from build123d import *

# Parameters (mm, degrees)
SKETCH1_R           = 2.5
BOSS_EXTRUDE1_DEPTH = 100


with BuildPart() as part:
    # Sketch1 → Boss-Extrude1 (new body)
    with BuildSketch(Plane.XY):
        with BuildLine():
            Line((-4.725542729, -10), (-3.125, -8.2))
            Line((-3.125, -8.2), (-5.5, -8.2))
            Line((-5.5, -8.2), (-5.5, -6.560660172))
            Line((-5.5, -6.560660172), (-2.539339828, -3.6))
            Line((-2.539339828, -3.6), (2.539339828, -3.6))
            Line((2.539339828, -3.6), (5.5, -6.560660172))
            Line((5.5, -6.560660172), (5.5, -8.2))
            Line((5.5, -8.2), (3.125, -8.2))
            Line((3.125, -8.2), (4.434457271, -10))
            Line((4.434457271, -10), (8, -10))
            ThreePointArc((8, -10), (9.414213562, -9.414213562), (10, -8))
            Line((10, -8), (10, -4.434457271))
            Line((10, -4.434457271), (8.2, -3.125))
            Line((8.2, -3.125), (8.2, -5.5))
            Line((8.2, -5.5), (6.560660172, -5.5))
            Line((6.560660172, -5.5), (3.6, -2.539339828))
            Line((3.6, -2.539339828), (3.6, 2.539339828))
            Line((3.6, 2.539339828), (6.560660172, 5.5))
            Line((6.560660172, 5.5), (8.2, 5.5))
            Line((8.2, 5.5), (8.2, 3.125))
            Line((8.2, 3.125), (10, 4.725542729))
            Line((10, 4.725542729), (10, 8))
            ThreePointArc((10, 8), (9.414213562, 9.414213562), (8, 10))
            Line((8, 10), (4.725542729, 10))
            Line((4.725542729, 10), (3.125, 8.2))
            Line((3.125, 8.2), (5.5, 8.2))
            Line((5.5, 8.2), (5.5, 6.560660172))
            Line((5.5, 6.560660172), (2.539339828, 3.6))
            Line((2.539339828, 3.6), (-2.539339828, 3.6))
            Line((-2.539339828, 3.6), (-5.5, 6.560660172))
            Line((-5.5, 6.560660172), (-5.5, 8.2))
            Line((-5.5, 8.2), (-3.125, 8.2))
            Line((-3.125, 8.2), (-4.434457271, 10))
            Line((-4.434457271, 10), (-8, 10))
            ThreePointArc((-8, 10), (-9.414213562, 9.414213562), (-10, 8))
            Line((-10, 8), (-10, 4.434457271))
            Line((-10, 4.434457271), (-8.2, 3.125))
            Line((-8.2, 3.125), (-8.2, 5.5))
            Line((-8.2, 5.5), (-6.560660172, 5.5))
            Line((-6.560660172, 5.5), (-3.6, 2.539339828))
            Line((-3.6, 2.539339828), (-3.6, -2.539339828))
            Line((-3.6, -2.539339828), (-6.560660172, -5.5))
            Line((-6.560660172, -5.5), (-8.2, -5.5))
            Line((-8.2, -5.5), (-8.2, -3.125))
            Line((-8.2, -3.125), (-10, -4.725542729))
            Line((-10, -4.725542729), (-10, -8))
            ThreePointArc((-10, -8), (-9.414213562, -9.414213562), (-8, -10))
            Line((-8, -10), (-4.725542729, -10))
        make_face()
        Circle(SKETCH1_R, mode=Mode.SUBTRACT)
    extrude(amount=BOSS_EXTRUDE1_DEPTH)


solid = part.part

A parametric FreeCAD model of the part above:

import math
import FreeCAD as App
import Part
import Sketcher

V = App.Vector

doc = App.newDocument("Part")
params = doc.addObject("Spreadsheet::Sheet", "Params")
for row, (alias, value) in enumerate([
    ("sketch1_diameter", "5 mm"),
    ("sketch1_radius", "2 mm"),
    ("pad1_length", "100 mm"),
], start=1):
    params.set(f"A{row}", alias)
    params.set(f"B{row}", "=" + value)
    params.setAlias(f"B{row}", alias)

body = doc.addObject("PartDesign::Body", "Body")

# Sketch on XY plane
sketch1 = body.newObject("Sketcher::SketchObject", "Sketch")
sketch1.AttachmentSupport = (doc.getObject("XY_Plane"), [""])
sketch1.MapMode = "FlatFace"
sketch1.addGeometry([
    Part.LineSegment(V(-4.725543, -10, 0), V(-3.125, -8.2, 0)),  # 0
    Part.LineSegment(V(-3.125, -8.2, 0), V(-5.5, -8.2, 0)),  # 1
    Part.LineSegment(V(-5.5, -8.2, 0), V(-5.5, -6.56066, 0)),  # 2
    Part.LineSegment(V(-5.5, -6.56066, 0), V(-2.53934, -3.6, 0)),  # 3
    Part.LineSegment(V(-2.53934, -3.6, 0), V(2.53934, -3.6, 0)),  # 4
    Part.LineSegment(V(2.53934, -3.6, 0), V(5.5, -6.56066, 0)),  # 5
    Part.LineSegment(V(5.5, -6.56066, 0), V(5.5, -8.2, 0)),  # 6
    Part.LineSegment(V(5.5, -8.2, 0), V(3.125, -8.2, 0)),  # 7
    Part.LineSegment(V(3.125, -8.2, 0), V(4.434457, -10, 0)),  # 8
    Part.LineSegment(V(4.434457, -10, 0), V(8, -10, 0)),  # 9
    Part.ArcOfCircle(Part.Circle(V(8, -8, 0), V(0, 0, 1), 2), math.radians(-90), math.radians(0)),  # 10
    Part.LineSegment(V(10, -8, 0), V(10, -4.434457, 0)),  # 11
    Part.LineSegment(V(10, -4.434457, 0), V(8.2, -3.125, 0)),  # 12
    Part.LineSegment(V(8.2, -3.125, 0), V(8.2, -5.5, 0)),  # 13
    Part.LineSegment(V(8.2, -5.5, 0), V(6.56066, -5.5, 0)),  # 14
    Part.LineSegment(V(6.56066, -5.5, 0), V(3.6, -2.53934, 0)),  # 15
    Part.LineSegment(V(3.6, -2.53934, 0), V(3.6, 2.53934, 0)),  # 16
    Part.LineSegment(V(3.6, 2.53934, 0), V(6.56066, 5.5, 0)),  # 17
    Part.LineSegment(V(6.56066, 5.5, 0), V(8.2, 5.5, 0)),  # 18
    Part.LineSegment(V(8.2, 5.5, 0), V(8.2, 3.125, 0)),  # 19
    Part.LineSegment(V(8.2, 3.125, 0), V(10, 4.725543, 0)),  # 20
    Part.LineSegment(V(10, 4.725543, 0), V(10, 8, 0)),  # 21
    Part.ArcOfCircle(Part.Circle(V(8, 8, 0), V(0, 0, 1), 2), math.radians(0), math.radians(90)),  # 22
    Part.LineSegment(V(8, 10, 0), V(4.725543, 10, 0)),  # 23
    Part.LineSegment(V(4.725543, 10, 0), V(3.125, 8.2, 0)),  # 24
    Part.LineSegment(V(3.125, 8.2, 0), V(5.5, 8.2, 0)),  # 25
    Part.LineSegment(V(5.5, 8.2, 0), V(5.5, 6.56066, 0)),  # 26
    Part.LineSegment(V(5.5, 6.56066, 0), V(2.53934, 3.6, 0)),  # 27
    Part.LineSegment(V(2.53934, 3.6, 0), V(-2.53934, 3.6, 0)),  # 28
    Part.LineSegment(V(-2.53934, 3.6, 0), V(-5.5, 6.56066, 0)),  # 29
    Part.LineSegment(V(-5.5, 6.56066, 0), V(-5.5, 8.2, 0)),  # 30
    Part.LineSegment(V(-5.5, 8.2, 0), V(-3.125, 8.2, 0)),  # 31
    Part.LineSegment(V(-3.125, 8.2, 0), V(-4.434457, 10, 0)),  # 32
    Part.LineSegment(V(-4.434457, 10, 0), V(-8, 10, 0)),  # 33
    Part.ArcOfCircle(Part.Circle(V(-8, 8, 0), V(0, 0, 1), 2), math.radians(90), math.radians(180)),  # 34
    Part.LineSegment(V(-10, 8, 0), V(-10, 4.434457, 0)),  # 35
    Part.LineSegment(V(-10, 4.434457, 0), V(-8.2, 3.125, 0)),  # 36
    Part.LineSegment(V(-8.2, 3.125, 0), V(-8.2, 5.5, 0)),  # 37
    Part.LineSegment(V(-8.2, 5.5, 0), V(-6.56066, 5.5, 0)),  # 38
    Part.LineSegment(V(-6.56066, 5.5, 0), V(-3.6, 2.53934, 0)),  # 39
    Part.LineSegment(V(-3.6, 2.53934, 0), V(-3.6, -2.53934, 0)),  # 40
    Part.LineSegment(V(-3.6, -2.53934, 0), V(-6.56066, -5.5, 0)),  # 41
    Part.LineSegment(V(-6.56066, -5.5, 0), V(-8.2, -5.5, 0)),  # 42
    Part.LineSegment(V(-8.2, -5.5, 0), V(-8.2, -3.125, 0)),  # 43
    Part.LineSegment(V(-8.2, -3.125, 0), V(-10, -4.725543, 0)),  # 44
    Part.LineSegment(V(-10, -4.725543, 0), V(-10, -8, 0)),  # 45
    Part.ArcOfCircle(Part.Circle(V(-8, -8, 0), V(0, 0, 1), 2), math.radians(-180), math.radians(-90)),  # 46
    Part.LineSegment(V(-8, -10, 0), V(-4.725543, -10, 0)),  # 47
    Part.Circle(V(0, 0, 0), V(0, 0, 1), 2.5),  # 48
], False)
sketch1.addConstraint([
    Sketcher.Constraint("Coincident", 0, 2, 1, 1),
    Sketcher.Constraint("Coincident", 1, 2, 2, 1),
    Sketcher.Constraint("Coincident", 2, 2, 3, 1),
    Sketcher.Constraint("Coincident", 3, 2, 4, 1),
    Sketcher.Constraint("Coincident", 4, 2, 5, 1),
    Sketcher.Constraint("Coincident", 5, 2, 6, 1),
    Sketcher.Constraint("Coincident", 6, 2, 7, 1),
    Sketcher.Constraint("Coincident", 7, 2, 8, 1),
    Sketcher.Constraint("Coincident", 8, 2, 9, 1),
    Sketcher.Constraint("Tangent", 9, 2, 10, 1),
    Sketcher.Constraint("Tangent", 10, 2, 11, 1),
    Sketcher.Constraint("Coincident", 11, 2, 12, 1),
    Sketcher.Constraint("Coincident", 12, 2, 13, 1),
    Sketcher.Constraint("Coincident", 13, 2, 14, 1),
    Sketcher.Constraint("Coincident", 14, 2, 15, 1),
    Sketcher.Constraint("Coincident", 15, 2, 16, 1),
    Sketcher.Constraint("Coincident", 16, 2, 17, 1),
    Sketcher.Constraint("Coincident", 17, 2, 18, 1),
    Sketcher.Constraint("Coincident", 18, 2, 19, 1),
    Sketcher.Constraint("Coincident", 19, 2, 20, 1),
    Sketcher.Constraint("Coincident", 20, 2, 21, 1),
    Sketcher.Constraint("Tangent", 21, 2, 22, 1),
    Sketcher.Constraint("Tangent", 22, 2, 23, 1),
    Sketcher.Constraint("Coincident", 23, 2, 24, 1),
    Sketcher.Constraint("Coincident", 24, 2, 25, 1),
    Sketcher.Constraint("Coincident", 25, 2, 26, 1),
    Sketcher.Constraint("Coincident", 26, 2, 27, 1),
    Sketcher.Constraint("Coincident", 27, 2, 28, 1),
    Sketcher.Constraint("Coincident", 28, 2, 29, 1),
    Sketcher.Constraint("Coincident", 29, 2, 30, 1),
    Sketcher.Constraint("Coincident", 30, 2, 31, 1),
    Sketcher.Constraint("Coincident", 31, 2, 32, 1),
    Sketcher.Constraint("Coincident", 32, 2, 33, 1),
    Sketcher.Constraint("Tangent", 33, 2, 34, 1),
    Sketcher.Constraint("Tangent", 34, 2, 35, 1),
    Sketcher.Constraint("Coincident", 35, 2, 36, 1),
    Sketcher.Constraint("Coincident", 36, 2, 37, 1),
    Sketcher.Constraint("Coincident", 37, 2, 38, 1),
    Sketcher.Constraint("Coincident", 38, 2, 39, 1),
    Sketcher.Constraint("Coincident", 39, 2, 40, 1),
    Sketcher.Constraint("Coincident", 40, 2, 41, 1),
    Sketcher.Constraint("Coincident", 41, 2, 42, 1),
    Sketcher.Constraint("Coincident", 42, 2, 43, 1),
    Sketcher.Constraint("Coincident", 43, 2, 44, 1),
    Sketcher.Constraint("Coincident", 44, 2, 45, 1),
    Sketcher.Constraint("Tangent", 45, 2, 46, 1),
    Sketcher.Constraint("Tangent", 46, 2, 47, 1),
    Sketcher.Constraint("Coincident", 47, 2, 0, 1),
    Sketcher.Constraint("Horizontal", 1),
    Sketcher.Constraint("Vertical", 2),
    Sketcher.Constraint("Horizontal", 4),
    Sketcher.Constraint("Vertical", 6),
    Sketcher.Constraint("Horizontal", 7),
    Sketcher.Constraint("Horizontal", 9),
    Sketcher.Constraint("Vertical", 11),
    Sketcher.Constraint("Vertical", 13),
    Sketcher.Constraint("Horizontal", 14),
    Sketcher.Constraint("Vertical", 16),
    Sketcher.Constraint("Horizontal", 18),
    Sketcher.Constraint("Vertical", 19),
    Sketcher.Constraint("Vertical", 21),
    Sketcher.Constraint("Horizontal", 23),
    Sketcher.Constraint("Horizontal", 25),
    Sketcher.Constraint("Vertical", 26),
    Sketcher.Constraint("Horizontal", 28),
    Sketcher.Constraint("Vertical", 30),
    Sketcher.Constraint("Horizontal", 31),
    Sketcher.Constraint("Horizontal", 33),
    Sketcher.Constraint("Vertical", 35),
    Sketcher.Constraint("Vertical", 37),
    Sketcher.Constraint("Horizontal", 38),
    Sketcher.Constraint("Vertical", 40),
    Sketcher.Constraint("Horizontal", 42),
    Sketcher.Constraint("Vertical", 43),
    Sketcher.Constraint("Vertical", 45),
    Sketcher.Constraint("Horizontal", 47),
    Sketcher.Constraint("Coincident", 48, 3, -1, 1),
    Sketcher.Constraint("Equal", 10, 22),
    Sketcher.Constraint("Equal", 22, 34),
    Sketcher.Constraint("Equal", 34, 46),
    Sketcher.Constraint("Symmetric", 10, 3, 34, 3, -1, 1),
    Sketcher.Constraint("Symmetric", 22, 3, 46, 3, -1, 1),
    Sketcher.Constraint("Symmetric", 0, 2, 24, 2, -1, 1),
    Sketcher.Constraint("Symmetric", 2, 2, 26, 2, -1, 1),
    Sketcher.Constraint("Symmetric", 3, 2, 27, 2, -1, 1),
    Sketcher.Constraint("Symmetric", 5, 2, 29, 2, -1, 1),
    Sketcher.Constraint("Symmetric", 7, 2, 31, 2, -1, 1),
    Sketcher.Constraint("Symmetric", 12, 2, 36, 2, -1, 1),
    Sketcher.Constraint("Symmetric", 14, 2, 38, 2, -1, 1),
    Sketcher.Constraint("Symmetric", 15, 2, 39, 2, -1, 1),
    Sketcher.Constraint("Symmetric", 17, 2, 41, 2, -1, 1),
    Sketcher.Constraint("Symmetric", 19, 2, 43, 2, -1, 1),
    Sketcher.Constraint("Symmetric", 22, 3, 34, 3, -2),
    Sketcher.Constraint("Symmetric", 2, 2, 5, 2, -2),
    Sketcher.Constraint("Symmetric", 0, 2, 7, 2, -2),
    Sketcher.Constraint("Symmetric", 19, 2, 36, 2, -2),
    Sketcher.Constraint("Symmetric", 17, 2, 38, 2, -2),
    Sketcher.Constraint("Perpendicular", 3, 5),
    Sketcher.Constraint("Parallel", 5, 15),
    Sketcher.Constraint("Perpendicular", 15, 17),
    Sketcher.Constraint("Parallel", 0, 24),
    Sketcher.Constraint("Perpendicular", 27, 29),
    Sketcher.Constraint("Parallel", 8, 32),
    Sketcher.Constraint("Parallel", 12, 36),
    Sketcher.Constraint("Perpendicular", 39, 41),
    Sketcher.Constraint("Parallel", 20, 44),
    Sketcher.Constraint("Horizontal", 16, 2, 39, 2),
    Sketcher.Constraint("Equal", 42, 2),
    Sketcher.Constraint("Equal", 33, 11),
    Sketcher.Constraint("Equal", 31, 13),
    Sketcher.Constraint("Equal", 28, 16),
    Sketcher.Constraint("Equal", 47, 21),
    Sketcher.Constraint("Equal", 8, 12),
    Sketcher.Constraint("Equal", 5, 15),
    Sketcher.Constraint("Equal", 0, 20),
    Sketcher.Constraint("Diameter", 48, 5.0),
    Sketcher.Constraint("Radius", 10, 2.0),
    Sketcher.Constraint("DistanceX", -1, 1, 10, 3, 8.0),
    Sketcher.Constraint("DistanceY", 0, 2, -1, 1, 8.2),
    Sketcher.Constraint("DistanceX", 1, 2, -1, 1, 5.5),
    Sketcher.Constraint("DistanceY", 3, 2, -1, 1, 3.6),
    Sketcher.Constraint("DistanceX", 1, 2, 1, 1, 2.375),
    Sketcher.Constraint("DistanceX", 4, 1, 4, 2, 5.07868),
    Sketcher.Constraint("Distance", 0, 2.40868),
    Sketcher.Constraint("Distance", 8, 2.225911),
])
sketch1.setExpression("Constraints[115]", "Params.sketch1_diameter")
sketch1.setExpression("Constraints[116]", "Params.sketch1_radius")
pad1 = body.newObject("PartDesign::Pad", "Pad")
pad1.Profile = sketch1
pad1.setExpression("Length", "Params.pad1_length")

doc.recompute()
